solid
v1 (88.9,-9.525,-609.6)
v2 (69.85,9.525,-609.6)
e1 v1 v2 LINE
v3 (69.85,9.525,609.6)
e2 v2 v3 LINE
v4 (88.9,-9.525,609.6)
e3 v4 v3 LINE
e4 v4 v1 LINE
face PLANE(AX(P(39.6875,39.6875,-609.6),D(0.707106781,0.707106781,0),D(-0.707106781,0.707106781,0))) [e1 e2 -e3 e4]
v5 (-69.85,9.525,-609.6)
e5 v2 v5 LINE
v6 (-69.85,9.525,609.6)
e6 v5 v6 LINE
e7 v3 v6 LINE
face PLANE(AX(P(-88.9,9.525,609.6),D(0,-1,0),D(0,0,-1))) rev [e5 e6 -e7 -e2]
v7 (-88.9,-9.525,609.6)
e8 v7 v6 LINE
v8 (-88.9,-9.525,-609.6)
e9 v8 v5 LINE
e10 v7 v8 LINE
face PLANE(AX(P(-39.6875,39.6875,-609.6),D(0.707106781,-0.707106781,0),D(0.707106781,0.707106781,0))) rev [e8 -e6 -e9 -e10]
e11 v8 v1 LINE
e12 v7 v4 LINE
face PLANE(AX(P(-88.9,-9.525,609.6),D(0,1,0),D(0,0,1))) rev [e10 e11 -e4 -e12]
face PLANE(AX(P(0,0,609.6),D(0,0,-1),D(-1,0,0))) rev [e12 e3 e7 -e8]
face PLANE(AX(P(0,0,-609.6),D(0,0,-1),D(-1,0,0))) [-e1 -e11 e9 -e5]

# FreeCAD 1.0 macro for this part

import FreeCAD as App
import Part
import Sketcher

V = App.Vector
Q = App.Units.Quantity


def add_polygon(sketch, points):
    """Adds a closed chain of lines whose ends are joined by coincident constraints."""
    first, n = sketch.GeometryCount, len(points)
    for a, b in zip(points, points[1:] + points[:1]):
        sketch.addGeometry(Part.LineSegment(App.Vector(*a, 0), App.Vector(*b, 0)), False)
    for i in range(n):
        sketch.addConstraint(Sketcher.Constraint("Coincident", first + i, 2, first + (i + 1) % n, 1))

doc = App.newDocument("Part")
params = doc.addObject("Spreadsheet::Sheet", "Params")
for row, (alias, value) in enumerate([
    ("sketch1_width", "7 in"),
    ("sketch1_height", "0.75 in"),
    ("pad1_length", "48 in"),
    ("sketch2_width", "0.75 in"),
    ("pocket1_length", "48 in"),
], start=1):
    params.set(f"A{row}", alias)
    params.set(f"B{row}", "=" + value)
    params.setAlias(f"B{row}", alias)

body = doc.addObject("PartDesign::Body", "Body")

sketch1 = body.newObject("Sketcher::SketchObject", "Sketch")
sketch1.AttachmentSupport = (doc.getObject("XY_Plane"), [""])
sketch1.MapMode = "FlatFace"
add_polygon(sketch1, [(-88.9, 9.525), (-88.9, -9.525), (88.9, -9.525), (88.9, 9.525)])
sketch1.addConstraint(Sketcher.Constraint("Vertical", 0))
sketch1.addConstraint(Sketcher.Constraint("Horizontal", 1))
sketch1.addConstraint(Sketcher.Constraint("Vertical", 2))
sketch1.addConstraint(Sketcher.Constraint("Horizontal", 3))
sketch1.addConstraint(Sketcher.Constraint("Symmetric", 0, 2, 2, 2, -1, 1))
sketch1.addConstraint(Sketcher.Constraint("DistanceX", 1, 1, 1, 2, Q("7 in")))
sketch1.addConstraint(Sketcher.Constraint("DistanceY", 0, 2, 0, 1, Q("0.75 in")))
sketch1.setExpression("Constraints[9]", "Params.sketch1_width")
sketch1.setExpression("Constraints[10]", "Params.sketch1_height")
pad1 = body.newObject("PartDesign::Pad", "Pad")
pad1.Profile = sketch1
pad1.setExpression("Length", "Params.pad1_length")
pad1.Midplane = True

sketch2 = body.newObject("Sketcher::SketchObject", "Sketch001")
sketch2.AttachmentSupport = (doc.getObject("XY_Plane"), [""])
sketch2.MapMode = "FlatFace"
sketch2.AttachmentOffset = App.Placement(V(0, 0, 24 * 25.4), App.Rotation())
add_polygon(sketch2, [(-88.9, -9.525), (-69.85, 9.525), (-88.9, 9.525)])
add_polygon(sketch2, [(88.9, 9.525), (69.85, 9.525), (88.9, -9.525)])
sketch2.addConstraint(Sketcher.Constraint("Horizontal", 1))
sketch2.addConstraint(Sketcher.Constraint("Vertical", 2))
sketch2.addConstraint(Sketcher.Constraint("Horizontal", 3))
sketch2.addConstraint(Sketcher.Constraint("Vertical", 5))
sketch2.addConstraint(Sketcher.Constraint("Symmetric", 1, 2, 4, 2, -1, 1))
sketch2.addConstraint(Sketcher.Constraint("Symmetric", 0, 2, 3, 2, -2))
sketch2.addConstraint(Sketcher.Constraint("Perpendicular", 0, 4))
sketch2.addConstraint(Sketcher.Constraint("Horizontal", 2, 2, 4, 2))
sketch2.addConstraint(Sketcher.Constraint("DistanceX", 2, 2, 4, 2, Q("7 in")))
sketch2.addConstraint(Sketcher.Constraint("DistanceX", 1, 2, 1, 1, Q("0.75 in")))
sketch2.setExpression("Constraints[15]", "Params.sketch2_width")
pocket1 = body.newObject("PartDesign::Pocket", "Pocket")
pocket1.Profile = sketch2
pocket1.setExpression("Length", "Params.pocket1_length")

doc.recompute()
